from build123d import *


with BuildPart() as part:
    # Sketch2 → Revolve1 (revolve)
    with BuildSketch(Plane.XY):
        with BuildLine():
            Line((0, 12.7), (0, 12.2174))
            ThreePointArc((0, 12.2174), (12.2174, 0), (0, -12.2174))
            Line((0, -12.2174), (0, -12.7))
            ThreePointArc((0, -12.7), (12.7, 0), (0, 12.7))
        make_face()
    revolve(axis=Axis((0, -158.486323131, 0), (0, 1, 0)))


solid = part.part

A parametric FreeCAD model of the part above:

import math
import FreeCAD as App
import Part
import Sketcher

V = App.Vector
Q = App.Units.Quantity

doc = App.newDocument("Part")
body = doc.addObject("PartDesign::Body", "Body")

# Sketch on XY plane
sketch1 = body.newObject("Sketcher::SketchObject", "Sketch")
sketch1.AttachmentSupport = (doc.getObject("XY_Plane"), [""])
sketch1.MapMode = "FlatFace"
sketch1.addGeometry(Part.LineSegment(V(0, 12.7, 0), V(0, 12.22, 0)), False)
sketch1.addGeometry(Part.ArcOfCircle(Part.Circle(V(0, 0, 0), V(0, 0, 1), 12.22), math.radians(-90), math.radians(90)), False)
sketch1.addGeometry(Part.LineSegment(V(0, -12.22, 0), V(0, -12.7, 0)), False)
sketch1.addGeometry(Part.ArcOfCircle(Part.Circle(V(0, 0, 0), V(0, 0, 1), 12.7), math.radians(-90), math.radians(90)), False)
sketch1.addConstraint(Sketcher.Constraint("Coincident", 0, 2, 1, 2))
sketch1.addConstraint(Sketcher.Constraint("Coincident", 1, 1, 2, 1))
sketch1.addConstraint(Sketcher.Constraint("Coincident", 2, 2, 3, 1))
sketch1.addConstraint(Sketcher.Constraint("Coincident", 3, 2, 0, 1))
sketch1.addConstraint(Sketcher.Constraint("Vertical", 0))
sketch1.addConstraint(Sketcher.Constraint("Vertical", 2))
sketch1.addConstraint(Sketcher.Constraint("Coincident", 1, 3, -1, 1))
sketch1.addConstraint(Sketcher.Constraint("Coincident", 3, 3, -1, 1))
sketch1.addConstraint(Sketcher.Constraint("PointOnObject", 0, 2, -2))
sketch1.addConstraint(Sketcher.Constraint("PointOnObject", 1, 1, -2))
sketch1.addConstraint(Sketcher.Constraint("Radius", 3, Q("0.5 in")))
sketch1.addConstraint(Sketcher.Constraint("Radius", 1, Q("0.481 in")))
revolution = body.newObject("PartDesign::Revolution", "Revolution")
revolution.Profile = sketch1
revolution.ReferenceAxis = (sketch1, ["V_Axis"])
revolution.Angle = 360

doc.recompute()
